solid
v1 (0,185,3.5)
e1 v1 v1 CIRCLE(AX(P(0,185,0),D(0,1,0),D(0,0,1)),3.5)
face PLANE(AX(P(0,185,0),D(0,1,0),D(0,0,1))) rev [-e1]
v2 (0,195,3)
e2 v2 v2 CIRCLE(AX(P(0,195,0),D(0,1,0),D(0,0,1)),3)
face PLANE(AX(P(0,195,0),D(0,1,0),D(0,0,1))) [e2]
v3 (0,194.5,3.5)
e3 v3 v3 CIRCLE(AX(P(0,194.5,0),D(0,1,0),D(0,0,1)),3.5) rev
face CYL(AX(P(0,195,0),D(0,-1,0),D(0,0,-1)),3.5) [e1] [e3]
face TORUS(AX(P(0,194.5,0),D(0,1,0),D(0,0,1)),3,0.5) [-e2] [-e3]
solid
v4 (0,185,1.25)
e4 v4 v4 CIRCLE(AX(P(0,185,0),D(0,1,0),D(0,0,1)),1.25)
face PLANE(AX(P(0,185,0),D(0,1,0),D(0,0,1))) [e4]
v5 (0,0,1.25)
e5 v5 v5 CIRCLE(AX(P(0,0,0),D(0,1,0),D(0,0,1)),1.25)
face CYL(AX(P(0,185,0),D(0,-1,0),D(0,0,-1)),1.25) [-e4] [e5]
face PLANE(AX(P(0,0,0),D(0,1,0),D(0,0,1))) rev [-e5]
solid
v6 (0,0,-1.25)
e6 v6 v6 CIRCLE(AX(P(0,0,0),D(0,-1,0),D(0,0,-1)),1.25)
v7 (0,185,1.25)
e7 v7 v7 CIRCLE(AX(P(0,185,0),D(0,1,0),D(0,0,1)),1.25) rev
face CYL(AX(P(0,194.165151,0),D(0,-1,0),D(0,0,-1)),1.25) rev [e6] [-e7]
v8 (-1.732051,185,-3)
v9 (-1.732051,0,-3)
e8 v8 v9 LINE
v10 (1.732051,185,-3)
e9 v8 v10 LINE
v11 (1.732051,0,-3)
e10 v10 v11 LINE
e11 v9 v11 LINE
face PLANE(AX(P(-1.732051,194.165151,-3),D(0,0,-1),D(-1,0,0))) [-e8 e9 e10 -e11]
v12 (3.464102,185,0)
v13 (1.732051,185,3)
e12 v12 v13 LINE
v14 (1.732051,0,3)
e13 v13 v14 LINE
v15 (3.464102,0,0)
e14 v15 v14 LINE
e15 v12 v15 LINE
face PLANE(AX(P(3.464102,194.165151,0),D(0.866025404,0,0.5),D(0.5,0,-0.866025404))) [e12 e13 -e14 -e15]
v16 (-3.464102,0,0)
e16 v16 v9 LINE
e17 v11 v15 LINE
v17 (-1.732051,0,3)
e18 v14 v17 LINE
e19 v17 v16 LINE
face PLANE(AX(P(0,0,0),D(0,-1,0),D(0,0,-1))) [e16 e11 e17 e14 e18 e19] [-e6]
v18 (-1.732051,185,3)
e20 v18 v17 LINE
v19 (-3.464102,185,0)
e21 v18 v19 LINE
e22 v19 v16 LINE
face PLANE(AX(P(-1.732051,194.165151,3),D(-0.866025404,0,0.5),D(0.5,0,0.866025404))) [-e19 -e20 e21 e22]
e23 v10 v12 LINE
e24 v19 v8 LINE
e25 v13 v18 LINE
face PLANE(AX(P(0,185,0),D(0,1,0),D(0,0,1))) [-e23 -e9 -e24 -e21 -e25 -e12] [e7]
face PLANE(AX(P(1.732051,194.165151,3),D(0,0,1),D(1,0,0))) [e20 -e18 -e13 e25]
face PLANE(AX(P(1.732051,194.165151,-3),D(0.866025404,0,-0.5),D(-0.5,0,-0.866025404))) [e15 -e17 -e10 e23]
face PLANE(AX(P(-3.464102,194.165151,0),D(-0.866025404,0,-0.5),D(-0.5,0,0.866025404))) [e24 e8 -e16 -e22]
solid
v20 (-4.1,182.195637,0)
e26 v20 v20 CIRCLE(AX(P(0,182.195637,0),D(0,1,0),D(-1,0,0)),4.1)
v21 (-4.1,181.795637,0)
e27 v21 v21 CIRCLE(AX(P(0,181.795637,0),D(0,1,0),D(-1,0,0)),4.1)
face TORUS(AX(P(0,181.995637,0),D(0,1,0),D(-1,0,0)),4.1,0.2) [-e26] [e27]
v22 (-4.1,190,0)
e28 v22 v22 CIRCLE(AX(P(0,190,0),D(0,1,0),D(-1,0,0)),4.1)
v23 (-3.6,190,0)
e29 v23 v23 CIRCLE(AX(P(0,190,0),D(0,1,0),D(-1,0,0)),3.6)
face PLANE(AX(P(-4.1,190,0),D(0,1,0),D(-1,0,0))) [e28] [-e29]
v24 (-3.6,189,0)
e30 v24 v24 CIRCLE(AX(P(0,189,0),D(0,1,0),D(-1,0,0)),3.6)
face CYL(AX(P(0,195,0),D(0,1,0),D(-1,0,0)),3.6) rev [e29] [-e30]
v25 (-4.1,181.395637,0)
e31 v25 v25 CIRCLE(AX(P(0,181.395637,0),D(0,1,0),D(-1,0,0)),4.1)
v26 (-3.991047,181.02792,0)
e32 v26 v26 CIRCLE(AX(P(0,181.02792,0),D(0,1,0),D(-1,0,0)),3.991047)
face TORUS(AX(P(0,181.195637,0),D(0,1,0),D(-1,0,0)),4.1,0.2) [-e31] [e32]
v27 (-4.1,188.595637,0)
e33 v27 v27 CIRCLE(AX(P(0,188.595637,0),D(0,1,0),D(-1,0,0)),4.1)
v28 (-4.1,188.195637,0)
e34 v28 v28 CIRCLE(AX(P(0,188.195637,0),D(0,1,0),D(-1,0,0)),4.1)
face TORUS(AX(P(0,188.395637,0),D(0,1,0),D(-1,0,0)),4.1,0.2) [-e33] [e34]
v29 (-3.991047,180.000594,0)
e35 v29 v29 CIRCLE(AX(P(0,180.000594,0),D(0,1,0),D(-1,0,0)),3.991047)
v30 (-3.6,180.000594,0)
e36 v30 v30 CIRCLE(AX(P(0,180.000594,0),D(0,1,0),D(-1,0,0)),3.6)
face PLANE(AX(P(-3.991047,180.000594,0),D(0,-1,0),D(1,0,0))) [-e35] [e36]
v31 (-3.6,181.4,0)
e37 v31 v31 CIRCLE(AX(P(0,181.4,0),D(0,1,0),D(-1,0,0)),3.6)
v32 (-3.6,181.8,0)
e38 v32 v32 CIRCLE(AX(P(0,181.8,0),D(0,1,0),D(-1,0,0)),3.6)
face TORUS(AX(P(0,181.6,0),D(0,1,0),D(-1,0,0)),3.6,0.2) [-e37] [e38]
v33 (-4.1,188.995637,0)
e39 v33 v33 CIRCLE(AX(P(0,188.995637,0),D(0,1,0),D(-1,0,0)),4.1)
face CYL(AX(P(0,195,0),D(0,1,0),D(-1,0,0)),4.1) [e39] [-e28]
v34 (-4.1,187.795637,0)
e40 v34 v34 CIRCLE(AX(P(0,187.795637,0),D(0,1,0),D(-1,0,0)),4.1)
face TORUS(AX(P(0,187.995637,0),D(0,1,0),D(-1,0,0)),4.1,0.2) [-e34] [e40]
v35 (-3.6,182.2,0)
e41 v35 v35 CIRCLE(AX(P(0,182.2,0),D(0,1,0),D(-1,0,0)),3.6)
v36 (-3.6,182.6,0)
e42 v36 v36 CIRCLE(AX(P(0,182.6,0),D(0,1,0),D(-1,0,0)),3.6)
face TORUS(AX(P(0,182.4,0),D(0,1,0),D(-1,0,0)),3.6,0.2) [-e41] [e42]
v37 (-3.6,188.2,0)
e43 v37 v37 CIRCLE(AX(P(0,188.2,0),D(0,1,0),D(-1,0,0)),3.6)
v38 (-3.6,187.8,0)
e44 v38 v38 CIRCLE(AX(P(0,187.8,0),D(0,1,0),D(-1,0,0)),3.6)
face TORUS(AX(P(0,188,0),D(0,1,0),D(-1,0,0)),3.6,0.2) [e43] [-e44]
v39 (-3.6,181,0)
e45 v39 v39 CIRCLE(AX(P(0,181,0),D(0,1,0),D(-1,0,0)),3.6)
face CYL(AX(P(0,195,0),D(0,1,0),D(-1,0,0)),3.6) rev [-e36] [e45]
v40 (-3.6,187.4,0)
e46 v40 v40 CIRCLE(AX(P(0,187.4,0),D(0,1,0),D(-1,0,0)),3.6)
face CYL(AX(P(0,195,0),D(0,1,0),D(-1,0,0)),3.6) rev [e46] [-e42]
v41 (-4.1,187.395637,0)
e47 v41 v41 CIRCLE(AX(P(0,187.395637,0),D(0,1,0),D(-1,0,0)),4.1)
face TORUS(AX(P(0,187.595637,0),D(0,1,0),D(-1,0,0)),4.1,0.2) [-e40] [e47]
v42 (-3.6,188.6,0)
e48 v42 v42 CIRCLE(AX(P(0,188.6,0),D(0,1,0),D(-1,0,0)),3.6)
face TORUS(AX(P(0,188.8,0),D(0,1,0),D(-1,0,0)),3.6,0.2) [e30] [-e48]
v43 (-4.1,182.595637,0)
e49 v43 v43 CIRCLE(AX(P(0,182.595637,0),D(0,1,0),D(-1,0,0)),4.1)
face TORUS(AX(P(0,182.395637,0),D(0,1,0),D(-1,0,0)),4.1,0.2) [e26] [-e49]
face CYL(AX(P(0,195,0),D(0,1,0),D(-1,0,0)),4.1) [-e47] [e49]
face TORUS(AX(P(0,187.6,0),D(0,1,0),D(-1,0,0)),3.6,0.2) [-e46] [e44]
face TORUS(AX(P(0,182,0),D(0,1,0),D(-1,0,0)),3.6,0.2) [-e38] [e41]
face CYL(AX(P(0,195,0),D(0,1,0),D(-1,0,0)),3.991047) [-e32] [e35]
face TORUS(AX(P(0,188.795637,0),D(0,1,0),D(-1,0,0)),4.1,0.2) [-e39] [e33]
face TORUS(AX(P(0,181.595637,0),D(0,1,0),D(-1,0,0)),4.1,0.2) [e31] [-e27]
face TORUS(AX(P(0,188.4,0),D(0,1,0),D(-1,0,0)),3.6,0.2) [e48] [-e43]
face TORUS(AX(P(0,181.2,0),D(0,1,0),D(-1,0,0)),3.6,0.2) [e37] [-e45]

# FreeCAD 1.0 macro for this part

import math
import FreeCAD as App
import Part
import Sketcher
Q = App.Units.Quantity


def edges_at(feature, points):
    """Names of the edges that pass closest to the given points."""
    edges = feature.Shape.Edges
    near = lambda p: min(range(len(edges)), key=lambda i: edges[i].distToShape(Part.Vertex(*p))[0])
    return sorted({f"Edge{near(p) + 1}" for p in points})

doc = App.newDocument("Part")
body = doc.addObject("PartDesign::Body", "Body")

# Sketch on XZ plane
sketch1 = doc.addObject("Sketcher::SketchObject", "Sketch")
body.addObject(sketch1)
sketch1.AttachmentSupport = (doc.XZ_Plane, [""])
sketch1.MapMode = "FlatFace"
sketch1.addGeometry(Part.Circle(App.Vector(0, 0, 0), App.Vector(0, 0, 1), 1.2), False)
sketch1.addConstraint([
    Sketcher.Constraint("Coincident", 0, 3, -1, 1),
    Sketcher.Constraint("Diameter", 0, Q("2.5 mm")),
])
pad1 = doc.addObject("PartDesign::Pad", "Pad")
body.addObject(pad1)
pad1.Profile = sketch1
pad1.Length = 185
pad1.Reversed = True
body2 = doc.addObject("PartDesign::Body", "Body001")

# Sketch on XZ plane
sketch2 = doc.addObject("Sketcher::SketchObject", "Sketch001")
body2.addObject(sketch2)
sketch2.AttachmentSupport = (doc.getObject("XZ_Plane001"), [""])
sketch2.MapMode = "FlatFace"
sketch2.addGeometry([
    Part.LineSegment(App.Vector(-3.5, 0, 0), App.Vector(-1.7, -3, 0)),  # 0
    Part.LineSegment(App.Vector(-1.7, -3, 0), App.Vector(1.7, -3, 0)),  # 1
    Part.LineSegment(App.Vector(1.7, -3, 0), App.Vector(3.5, 0, 0)),  # 2
    Part.LineSegment(App.Vector(3.5, 0, 0), App.Vector(1.7, 3, 0)),  # 3
    Part.LineSegment(App.Vector(1.7, 3, 0), App.Vector(-1.7, 3, 0)),  # 4
    Part.LineSegment(App.Vector(-1.7, 3, 0), App.Vector(-3.5, 0, 0)),  # 5
    Part.Circle(App.Vector(0, 0, 0), App.Vector(0, 0, 1), 1.2),  # 6
], False)
sketch2.addConstraint([
    Sketcher.Constraint("Coincident", 0, 2, 1, 1),
    Sketcher.Constraint("Coincident", 1, 2, 2, 1),
    Sketcher.Constraint("Coincident", 2, 2, 3, 1),
    Sketcher.Constraint("Coincident", 3, 2, 4, 1),
    Sketcher.Constraint("Coincident", 4, 2, 5, 1),
    Sketcher.Constraint("Coincident", 5, 2, 0, 1),
    Sketcher.Constraint("Horizontal", 1),
    Sketcher.Constraint("Horizontal", 4),
    Sketcher.Constraint("Coincident", 6, 3, -1, 1),
    Sketcher.Constraint("Symmetric", 0, 2, 3, 2, -1, 1),
    Sketcher.Constraint("Symmetric", 2, 2, 5, 2, -1, 1),
    Sketcher.Constraint("PointOnObject", 2, 2, -1),
    Sketcher.Constraint("Parallel", 2, 5),
    Sketcher.Constraint("Vertical", 1, 2, 3, 2),
    Sketcher.Constraint("Diameter", 6, Q("2.5 mm")),
    Sketcher.Constraint("Angle", 0, Q("-60 deg")),
    Sketcher.Constraint("DistanceY", 0, 2, -1, 1, Q("3 mm")),
    Sketcher.Constraint("DistanceX", 1, 1, 1, 2, Q("3.464102 mm")),
])
pad2 = doc.addObject("PartDesign::Pad", "Pad001")
body2.addObject(pad2)
pad2.Profile = sketch2
pad2.Length = 185
pad2.Reversed = True
body3 = doc.addObject("PartDesign::Body", "Body002")

# Sketch on XZ plane
sketch3 = doc.addObject("Sketcher::SketchObject", "Sketch002")
body3.addObject(sketch3)
sketch3.AttachmentSupport = (doc.getObject("XZ_Plane002"), [""])
sketch3.MapMode = "FlatFace"
sketch3.AttachmentOffset = App.Placement(App.Vector(0, 0, -185), App.Rotation())
sketch3.addGeometry(Part.Circle(App.Vector(0, 0, 0), App.Vector(0, 0, 1), 3.5), False)
sketch3.addConstraint([
    Sketcher.Constraint("Coincident", 0, 3, -1, 1),
    Sketcher.Constraint("Diameter", 0, Q("7 mm")),
])
pad3 = doc.addObject("PartDesign::Pad", "Pad002")
body3.addObject(pad3)
pad3.Profile = sketch3
pad3.Length = 10
pad3.Reversed = True
doc.recompute()

fillet = doc.addObject("PartDesign::Fillet", "Fillet")
body3.addObject(fillet)
fillet.Base = (pad3, edges_at(pad3, [(0, 195, -3.5)]))
fillet.Radius = 0.5
body4 = doc.addObject("PartDesign::Body", "Body003")

# Sketch on XY plane
sketch4 = doc.addObject("Sketcher::SketchObject", "Sketch003")
body4.addObject(sketch4)
sketch4.AttachmentSupport = (doc.getObject("XY_Plane003"), [""])
sketch4.MapMode = "FlatFace"
sketch4.addGeometry([
    Part.LineSegment(App.Vector(-3.6, 180, 0), App.Vector(-3.6, 181, 0)),  # 0
    Part.ArcOfCircle(Part.Circle(App.Vector(-3.6, 181.2, 0), App.Vector(0, 0, 1), 0.2), math.radians(-90), math.radians(90)),  # 1
    Part.ArcOfCircle(Part.Circle(App.Vector(-3.6, 181.6, 0), App.Vector(0, 0, 1), 0.2), math.radians(-90), math.radians(90)),  # 2
    Part.ArcOfCircle(Part.Circle(App.Vector(-3.6, 182, 0), App.Vector(0, 0, 1), 0.2), math.radians(-90), math.radians(90)),  # 3
    Part.ArcOfCircle(Part.Circle(App.Vector(-3.6, 182.4, 0), App.Vector(0, 0, 1), 0.2), math.radians(-90), math.radians(90)),  # 4
    Part.LineSegment(App.Vector(-3.6, 182.6, 0), App.Vector(-3.6, 187.4, 0)),  # 5
    Part.ArcOfCircle(Part.Circle(App.Vector(-3.6, 187.6, 0), App.Vector(0, 0, 1), 0.2), math.radians(-90), math.radians(90)),  # 6
    Part.ArcOfCircle(Part.Circle(App.Vector(-3.6, 188, 0), App.Vector(0, 0, 1), 0.2), math.radians(-90), math.radians(90)),  # 7
    Part.ArcOfCircle(Part.Circle(App.Vector(-3.6, 188.4, 0), App.Vector(0, 0, 1), 0.2), math.radians(-90), math.radians(90)),  # 8
    Part.ArcOfCircle(Part.Circle(App.Vector(-3.6, 188.8, 0), App.Vector(0, 0, 1), 0.2), math.radians(-90), math.radians(90)),  # 9
    Part.LineSegment(App.Vector(-3.6, 189, 0), App.Vector(-3.6, 190, 0)),  # 10
    Part.LineSegment(App.Vector(-3.6, 190, 0), App.Vector(-4.1, 190, 0)),  # 11
    Part.LineSegment(App.Vector(-4.1, 190, 0), App.Vector(-4.1, 189, 0)),  # 12
    Part.ArcOfCircle(Part.Circle(App.Vector(-4.1, 188.8, 0), App.Vector(0, 0, 1), 0.2), math.radians(90), math.radians(270)),  # 13
    Part.ArcOfCircle(Part.Circle(App.Vector(-4.1, 188.4, 0), App.Vector(0, 0, 1), 0.2), math.radians(90), math.radians(270)),  # 14
    Part.ArcOfCircle(Part.Circle(App.Vector(-4.1, 188, 0), App.Vector(0, 0, 1), 0.2), math.radians(90), math.radians(270)),  # 15
    Part.ArcOfCircle(Part.Circle(App.Vector(-4.1, 187.6, 0), App.Vector(0, 0, 1), 0.2), math.radians(90), math.radians(270)),  # 16
    Part.LineSegment(App.Vector(-4.1, 187.4, 0), App.Vector(-4.1, 182.6, 0)),  # 17
    Part.ArcOfCircle(Part.Circle(App.Vector(-4.1, 182.4, 0), App.Vector(0, 0, 1), 0.2), math.radians(90), math.radians(270)),  # 18
    Part.ArcOfCircle(Part.Circle(App.Vector(-4.1, 182, 0), App.Vector(0, 0, 1), 0.2), math.radians(90), math.radians(270)),  # 19
    Part.ArcOfCircle(Part.Circle(App.Vector(-4.1, 181.6, 0), App.Vector(0, 0, 1), 0.2), math.radians(90), math.radians(270)),  # 20
    Part.ArcOfCircle(Part.Circle(App.Vector(-4.1, 181.2, 0), App.Vector(0, 0, 1), 0.2), math.radians(90), math.radians(303)),  # 21
    Part.LineSegment(App.Vector(-3.99, 181.03, 0), App.Vector(-3.99, 180, 0)),  # 22
    Part.LineSegment(App.Vector(-3.99, 180, 0), App.Vector(-3.6, 180, 0)),  # 23
], False)
sketch4.addConstraint([
    Sketcher.Constraint("Coincident", 0, 2, 1, 1),
    Sketcher.Constraint("Tangent", 1, 2, 2, 1),
    Sketcher.Constraint("Tangent", 2, 2, 3, 1),
    Sketcher.Constraint("Tangent", 3, 2, 4, 1),
    Sketcher.Constraint("Coincident", 4, 2, 5, 1),
    Sketcher.Constraint("Coincident", 5, 2, 6, 1),
    Sketcher.Constraint("Tangent", 6, 2, 7, 1),
    Sketcher.Constraint("Tangent", 7, 2, 8, 1),
    Sketcher.Constraint("Tangent", 8, 2, 9, 1),
    Sketcher.Constraint("Coincident", 9, 2, 10, 1),
    Sketcher.Constraint("Coincident", 10, 2, 11, 1),
    Sketcher.Constraint("Coincident", 11, 2, 12, 1),
    Sketcher.Constraint("Coincident", 12, 2, 13, 1),
    Sketcher.Constraint("Tangent", 13, 2, 14, 1),
    Sketcher.Constraint("Tangent", 14, 2, 15, 1),
    Sketcher.Constraint("Tangent", 15, 2, 16, 1),
    Sketcher.Constraint("Coincident", 16, 2, 17, 1),
    Sketcher.Constraint("Coincident", 17, 2, 18, 1),
    Sketcher.Constraint("Tangent", 18, 2, 19, 1),
    Sketcher.Constraint("Tangent", 19, 2, 20, 1),
    Sketcher.Constraint("Tangent", 20, 2, 21, 1),
    Sketcher.Constraint("Coincident", 21, 2, 22, 1),
    Sketcher.Constraint("Coincident", 22, 2, 23, 1),
    Sketcher.Constraint("Coincident", 23, 2, 0, 1),
    Sketcher.Constraint("Vertical", 0),
    Sketcher.Constraint("Vertical", 5),
    Sketcher.Constraint("Vertical", 10),
    Sketcher.Constraint("Horizontal", 11),
    Sketcher.Constraint("Vertical", 12),
    Sketcher.Constraint("Vertical", 17),
    Sketcher.Constraint("Vertical", 22),
    Sketcher.Constraint("Horizontal", 23),
    Sketcher.Constraint("Equal", 1, 2),
    Sketcher.Constraint("Equal", 2, 3),
    Sketcher.Constraint("Equal", 3, 4),
    Sketcher.Constraint("Equal", 4, 6),
    Sketcher.Constraint("Equal", 6, 7),
    Sketcher.Constraint("Equal", 7, 8),
    Sketcher.Constraint("Equal", 8, 9),
    Sketcher.Constraint("Equal", 9, 13),
    Sketcher.Constraint("Equal", 13, 14),
    Sketcher.Constraint("Equal", 14, 15),
    Sketcher.Constraint("Equal", 15, 16),
    Sketcher.Constraint("Equal", 16, 18),
    Sketcher.Constraint("Equal", 18, 19),
    Sketcher.Constraint("Equal", 19, 20),
    Sketcher.Constraint("Equal", 20, 21),
    Sketcher.Constraint("Vertical", 1, 3, 2, 3),
    Sketcher.Constraint("Vertical", 2, 3, 3, 3),
    Sketcher.Constraint("Vertical", 3, 3, 4, 3),
    Sketcher.Constraint("Vertical", 4, 3, 6, 3),
    Sketcher.Constraint("Vertical", 6, 3, 7, 3),
    Sketcher.Constraint("Vertical", 7, 3, 8, 3),
    Sketcher.Constraint("Vertical", 8, 3, 9, 3),
    Sketcher.Constraint("Vertical", 13, 3, 14, 3),
    Sketcher.Constraint("Vertical", 14, 3, 15, 3),
    Sketcher.Constraint("Vertical", 15, 3, 16, 3),
    Sketcher.Constraint("Vertical", 16, 3, 18, 3),
    Sketcher.Constraint("Vertical", 18, 3, 19, 3),
    Sketcher.Constraint("Vertical", 19, 3, 20, 3),
    Sketcher.Constraint("Vertical", 20, 3, 21, 3),
    Sketcher.Constraint("Vertical", 9, 3, 0, 2),
    Sketcher.Constraint("Vertical", 3, 2, 4, 2),
    Sketcher.Constraint("Vertical", 8, 2, 9, 2),
    Sketcher.Constraint("Vertical", 21, 3, 11, 2),
    Sketcher.Constraint("Vertical", 15, 2, 16, 2),
    Sketcher.Constraint("Equal", 5, 17),
    Sketcher.Constraint("Radius", 1, Q("0.2 mm")),
    Sketcher.Constraint("DistanceY", 10, 1, 10, 2, Q("1 mm")),
    Sketcher.Constraint("DistanceX", 11, 2, 11, 1, Q("0.5 mm")),
    Sketcher.Constraint("DistanceY", 5, 1, 5, 2, Q("4.8 mm")),
    Sketcher.Constraint("DistanceY", -1, 1, 3, 3, Q("182 mm")),
    Sketcher.Constraint("DistanceX", 1, 3, -1, 1, Q("3.6 mm")),
    Sketcher.Constraint("DistanceX", 23, 1, 23, 2, Q("0.391047 mm")),
    Sketcher.Constraint("DistanceY", 0, 1, 0, 2, Q("0.999406 mm")),
    Sketcher.Constraint("DistanceY", 12, 2, 12, 1, Q("1.004363 mm")),
])
revolution = doc.addObject("PartDesign::Revolution", "Revolution")
body4.addObject(revolution)
revolution.Profile = sketch4
revolution.ReferenceAxis = (sketch4, ["V_Axis"])
revolution.Angle = 360

doc.recompute()
